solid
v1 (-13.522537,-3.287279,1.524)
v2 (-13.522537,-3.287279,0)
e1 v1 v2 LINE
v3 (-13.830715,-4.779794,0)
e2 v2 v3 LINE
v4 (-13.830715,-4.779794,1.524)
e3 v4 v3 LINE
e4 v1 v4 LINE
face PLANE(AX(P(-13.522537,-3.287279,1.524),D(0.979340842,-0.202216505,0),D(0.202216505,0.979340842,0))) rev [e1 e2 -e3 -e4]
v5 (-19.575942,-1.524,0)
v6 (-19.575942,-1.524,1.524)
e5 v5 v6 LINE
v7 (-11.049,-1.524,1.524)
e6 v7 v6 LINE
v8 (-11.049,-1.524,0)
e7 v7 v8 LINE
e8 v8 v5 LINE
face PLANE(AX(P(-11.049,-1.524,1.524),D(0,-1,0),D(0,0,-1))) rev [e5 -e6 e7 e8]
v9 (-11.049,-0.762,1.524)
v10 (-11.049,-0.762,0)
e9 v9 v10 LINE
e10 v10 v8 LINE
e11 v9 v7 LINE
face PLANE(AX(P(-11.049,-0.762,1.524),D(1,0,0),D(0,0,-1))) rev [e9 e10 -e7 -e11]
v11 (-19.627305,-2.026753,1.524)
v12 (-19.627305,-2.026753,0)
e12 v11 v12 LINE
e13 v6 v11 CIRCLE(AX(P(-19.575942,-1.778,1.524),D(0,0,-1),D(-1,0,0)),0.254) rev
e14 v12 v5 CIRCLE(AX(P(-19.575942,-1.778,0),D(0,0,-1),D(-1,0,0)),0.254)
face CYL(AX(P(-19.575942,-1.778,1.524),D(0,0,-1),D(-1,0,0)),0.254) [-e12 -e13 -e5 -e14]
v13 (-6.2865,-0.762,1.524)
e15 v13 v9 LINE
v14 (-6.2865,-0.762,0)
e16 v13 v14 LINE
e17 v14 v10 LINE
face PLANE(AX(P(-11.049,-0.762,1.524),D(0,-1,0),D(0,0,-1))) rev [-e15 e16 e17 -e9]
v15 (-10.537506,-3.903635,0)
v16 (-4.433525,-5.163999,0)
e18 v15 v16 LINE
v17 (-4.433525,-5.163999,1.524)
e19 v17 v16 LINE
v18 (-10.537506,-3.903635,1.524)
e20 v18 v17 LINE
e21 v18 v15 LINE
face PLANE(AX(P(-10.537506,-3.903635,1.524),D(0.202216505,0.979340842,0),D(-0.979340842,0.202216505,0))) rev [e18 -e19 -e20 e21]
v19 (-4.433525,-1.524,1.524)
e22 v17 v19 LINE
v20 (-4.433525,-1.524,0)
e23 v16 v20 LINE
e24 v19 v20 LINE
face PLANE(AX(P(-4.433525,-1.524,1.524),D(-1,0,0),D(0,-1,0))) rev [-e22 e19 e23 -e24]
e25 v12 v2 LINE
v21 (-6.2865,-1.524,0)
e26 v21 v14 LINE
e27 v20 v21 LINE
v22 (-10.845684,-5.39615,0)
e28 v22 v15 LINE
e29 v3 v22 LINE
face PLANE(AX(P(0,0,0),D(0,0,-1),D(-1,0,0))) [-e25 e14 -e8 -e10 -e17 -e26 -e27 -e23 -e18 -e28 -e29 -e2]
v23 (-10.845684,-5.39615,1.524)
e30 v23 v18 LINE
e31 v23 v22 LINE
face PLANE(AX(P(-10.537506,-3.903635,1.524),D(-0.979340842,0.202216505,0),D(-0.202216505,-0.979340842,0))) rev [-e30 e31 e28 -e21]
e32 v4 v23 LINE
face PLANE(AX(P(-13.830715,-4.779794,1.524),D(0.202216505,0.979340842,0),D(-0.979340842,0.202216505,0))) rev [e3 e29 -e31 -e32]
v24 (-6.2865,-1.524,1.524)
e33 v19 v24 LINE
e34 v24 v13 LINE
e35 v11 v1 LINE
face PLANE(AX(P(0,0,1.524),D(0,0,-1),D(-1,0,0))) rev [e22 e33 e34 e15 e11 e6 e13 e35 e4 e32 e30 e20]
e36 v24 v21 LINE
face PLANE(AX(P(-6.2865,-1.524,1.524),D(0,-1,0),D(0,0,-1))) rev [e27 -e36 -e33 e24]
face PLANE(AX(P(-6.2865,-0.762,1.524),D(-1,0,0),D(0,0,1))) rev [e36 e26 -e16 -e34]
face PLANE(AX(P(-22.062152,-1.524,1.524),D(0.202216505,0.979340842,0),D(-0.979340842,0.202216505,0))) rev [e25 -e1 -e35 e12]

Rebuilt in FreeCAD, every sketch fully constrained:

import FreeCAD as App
import Part
import Sketcher
Q = App.Units.Quantity


def edges_at(feature, points):
    """Names of the edges that pass closest to the given points."""
    edges = feature.Shape.Edges
    near = lambda p: min(range(len(edges)), key=lambda i: edges[i].distToShape(Part.Vertex(*p))[0])
    return sorted({f"Edge{near(p) + 1}" for p in points})


def add_polygon(sketch, points):
    """Adds a closed chain of lines whose ends are joined by coincident constraints."""
    first, n = sketch.GeometryCount, len(points)
    for a, b in zip(points, points[1:] + points[:1]):
        sketch.addGeometry(Part.LineSegment(App.Vector(*a, 0), App.Vector(*b, 0)), False)
    for i in range(n):
        sketch.addConstraint(Sketcher.Constraint("Coincident", first + i, 2, first + (i + 1) % n, 1))

doc = App.newDocument("Part")
params = doc.addObject("Spreadsheet::Sheet", "Params")
for row, (alias, value) in enumerate([
    ("sketch1_height", "0.03 in"),
    ("sketch1_length", "0.06 in"),
    ("sketch1_length2", "0.12 in"),
    ("sketch1_width", "0.1875 in"),
    ("pad1_length", "0.06 in"),
    ("fillet_radius", "0.01 in"),
], start=1):
    params.set(f"A{row}", alias)
    params.set(f"B{row}", "=" + value)
    params.setAlias(f"B{row}", alias)

body = doc.addObject("PartDesign::Body", "Body")

# Sketch on XY plane
sketch1 = body.newObject("Sketcher::SketchObject", "Sketch")
sketch1.AttachmentSupport = (doc.getObject("XY_Plane"), [""])
sketch1.MapMode = "FlatFace"
add_polygon(sketch1, [(-6.3, -1.5), (-6.3, -0.8), (-11, -0.8), (-11, -1.5), (-22.1, -1.5), (-13.5, -3.3), (-13.8, -4.8), (-10.8, -5.4), (-10.5, -3.9), (-4.4, -5.2), (-4.4, -1.5)])  # lines 0-10
sketch1.addConstraint(Sketcher.Constraint("Vertical", 0))
sketch1.addConstraint(Sketcher.Constraint("Horizontal", 1))
sketch1.addConstraint(Sketcher.Constraint("Vertical", 2))
sketch1.addConstraint(Sketcher.Constraint("Horizontal", 3))
sketch1.addConstraint(Sketcher.Constraint("Vertical", 9))
sketch1.addConstraint(Sketcher.Constraint("Horizontal", 10))
sketch1.addConstraint(Sketcher.Constraint("Perpendicular", 4, 5))
sketch1.addConstraint(Sketcher.Constraint("Perpendicular", 5, 6))
sketch1.addConstraint(Sketcher.Constraint("Perpendicular", 6, 7))
sketch1.addConstraint(Sketcher.Constraint("Perpendicular", 7, 8))
sketch1.addConstraint(Sketcher.Constraint("Horizontal", 3, 2, 9, 2))
sketch1.addConstraint(Sketcher.Constraint("Equal", 5, 7))
sketch1.addConstraint(Sketcher.Constraint("DistanceY", 0, 1, 0, 2, Q("0.03 in")))
sketch1.addConstraint(Sketcher.Constraint("Distance", 5, Q("0.06 in")))
sketch1.addConstraint(Sketcher.Constraint("Distance", 6, Q("0.12 in")))
sketch1.addConstraint(Sketcher.Constraint("DistanceX", 1, 2, 1, 1, Q("0.1875 in")))
sketch1.addConstraint(Sketcher.Constraint("DistanceY", 0, 2, -1, 1, Q("0.03 in")))
sketch1.addConstraint(Sketcher.Constraint("DistanceX", 1, 2, -1, 1, Q("0.435 in")))
sketch1.addConstraint(Sketcher.Constraint("DistanceY", 9, 1, 9, 2, 3.639999))
sketch1.addConstraint(Sketcher.Constraint("DistanceX", 3, 2, 3, 1, 11.013152))
sketch1.addConstraint(Sketcher.Constraint("DistanceX", 10, 2, 10, 1, 1.852975))
sketch1.addConstraint(Sketcher.Constraint("DistanceY", 4, 2, -1, 1, 3.287279))
sketch1.setExpression("Constraints[23]", "Params.sketch1_height")
sketch1.setExpression("Constraints[24]", "Params.sketch1_length")
sketch1.setExpression("Constraints[25]", "Params.sketch1_length2")
sketch1.setExpression("Constraints[26]", "Params.sketch1_width")
pad1 = body.newObject("PartDesign::Pad", "Pad")
pad1.Profile = sketch1
pad1.setExpression("Length", "Params.pad1_length")
doc.recompute()

fillet = body.newObject("PartDesign::Fillet", "Fillet")
fillet.Base = (pad1, edges_at(pad1, [(-22.062, -1.524, 0.762)]))
fillet.setExpression("Radius", "Params.fillet_radius")

doc.recompute()
